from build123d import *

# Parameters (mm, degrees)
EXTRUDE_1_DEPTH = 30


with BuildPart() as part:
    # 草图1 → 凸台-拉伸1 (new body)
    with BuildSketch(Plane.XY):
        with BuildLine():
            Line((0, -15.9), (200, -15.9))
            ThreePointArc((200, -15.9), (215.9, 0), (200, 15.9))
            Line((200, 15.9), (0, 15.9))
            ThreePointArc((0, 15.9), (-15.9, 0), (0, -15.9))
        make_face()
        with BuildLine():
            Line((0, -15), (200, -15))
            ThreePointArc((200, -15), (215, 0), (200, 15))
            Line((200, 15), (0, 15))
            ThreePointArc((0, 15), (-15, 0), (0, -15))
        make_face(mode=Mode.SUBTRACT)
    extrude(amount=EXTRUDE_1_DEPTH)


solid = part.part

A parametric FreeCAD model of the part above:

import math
import FreeCAD as App
import Part
import Sketcher

V = App.Vector
Q = App.Units.Quantity

doc = App.newDocument("Part")
body = doc.addObject("PartDesign::Body", "Body")

# Sketch on XY plane
sketch1 = body.newObject("Sketcher::SketchObject", "Sketch")
sketch1.AttachmentSupport = (doc.getObject("XY_Plane"), [""])
sketch1.MapMode = "FlatFace"
sketch1.addGeometry([
    Part.LineSegment(V(0, -16, 0), V(200, -16, 0)),  # 0
    Part.ArcOfCircle(Part.Circle(V(200, 0, 0), V(0, 0, 1), 16), math.radians(-90), math.radians(90)),  # 1
    Part.LineSegment(V(200, 16, 0), V(0, 16, 0)),  # 2
    Part.ArcOfCircle(Part.Circle(V(0, 0, 0), V(0, 0, 1), 16), math.radians(90), math.radians(270)),  # 3
    Part.LineSegment(V(200, -15, 0), V(0, -15, 0)),  # 4
    Part.ArcOfCircle(Part.Circle(V(0, 0, 0), V(0, 0, 1), 15), math.radians(90), math.radians(270)),  # 5
    Part.LineSegment(V(0, 15, 0), V(200, 15, 0)),  # 6
    Part.ArcOfCircle(Part.Circle(V(200, 0, 0), V(0, 0, 1), 15), math.radians(-90), math.radians(90)),  # 7
], False)
sketch1.addConstraint([
    Sketcher.Constraint("Tangent", 0, 2, 1, 1),
    Sketcher.Constraint("Tangent", 1, 2, 2, 1),
    Sketcher.Constraint("Tangent", 2, 2, 3, 1),
    Sketcher.Constraint("Tangent", 3, 2, 0, 1),
    Sketcher.Constraint("Tangent", 4, 2, 5, 2),
    Sketcher.Constraint("Tangent", 5, 1, 6, 1),
    Sketcher.Constraint("Tangent", 6, 2, 7, 2),
    Sketcher.Constraint("Tangent", 7, 1, 4, 1),
    Sketcher.Constraint("Horizontal", 0),
    Sketcher.Constraint("Horizontal", 2),
    Sketcher.Constraint("Horizontal", 4),
    Sketcher.Constraint("Horizontal", 6),
    Sketcher.Constraint("Coincident", 3, 3, -1, 1),
    Sketcher.Constraint("Coincident", 5, 3, -1, 1),
    Sketcher.Constraint("Vertical", 7, 3, 0, 2),
    Sketcher.Constraint("Radius", 5, Q("15 mm")),
    Sketcher.Constraint("Radius", 1, Q("15.9 mm")),
    Sketcher.Constraint("DistanceX", 0, 1, 0, 2, Q("200 mm")),
])
pad1 = body.newObject("PartDesign::Pad", "Pad")
pad1.Profile = sketch1
pad1.Length = 30

doc.recompute()
